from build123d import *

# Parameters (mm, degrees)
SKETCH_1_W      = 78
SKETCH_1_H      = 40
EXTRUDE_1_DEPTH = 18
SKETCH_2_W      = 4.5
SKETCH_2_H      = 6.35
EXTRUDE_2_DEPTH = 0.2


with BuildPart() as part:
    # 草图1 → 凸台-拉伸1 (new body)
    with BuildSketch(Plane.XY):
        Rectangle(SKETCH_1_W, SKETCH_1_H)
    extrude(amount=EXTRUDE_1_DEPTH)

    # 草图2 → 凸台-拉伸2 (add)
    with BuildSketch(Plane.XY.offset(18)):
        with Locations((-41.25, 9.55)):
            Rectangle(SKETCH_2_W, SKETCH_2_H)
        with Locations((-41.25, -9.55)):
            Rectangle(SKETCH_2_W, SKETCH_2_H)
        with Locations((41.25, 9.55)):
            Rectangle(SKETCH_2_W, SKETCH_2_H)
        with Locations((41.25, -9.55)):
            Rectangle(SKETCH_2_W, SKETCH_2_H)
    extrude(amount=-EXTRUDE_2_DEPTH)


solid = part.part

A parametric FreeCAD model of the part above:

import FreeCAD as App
import Part
import Sketcher

V = App.Vector
Q = App.Units.Quantity

doc = App.newDocument("Part")
body = doc.addObject("PartDesign::Body", "Body")

sketch1 = body.newObject("Sketcher::SketchObject", "Sketch")
sketch1.AttachmentSupport = (doc.getObject("XY_Plane"), [""])
sketch1.MapMode = "FlatFace"
sketch1.addGeometry([
    Part.LineSegment(V(-39, 20, 0), V(-39, -20, 0)),
    Part.LineSegment(V(-39, -20, 0), V(39, -20, 0)),
    Part.LineSegment(V(39, -20, 0), V(39, 20, 0)),
    Part.LineSegment(V(39, 20, 0), V(-39, 20, 0)),
], False)
sketch1.addConstraint([
    Sketcher.Constraint("Coincident", 0, 2, 1, 1),
    Sketcher.Constraint("Coincident", 1, 2, 2, 1),
    Sketcher.Constraint("Coincident", 2, 2, 3, 1),
    Sketcher.Constraint("Coincident", 3, 2, 0, 1),
    Sketcher.Constraint("Vertical", 0),
    Sketcher.Constraint("Horizontal", 1),
    Sketcher.Constraint("Vertical", 2),
    Sketcher.Constraint("Horizontal", 3),
    Sketcher.Constraint("Symmetric", 0, 2, 2, 2, -1, 1),
    Sketcher.Constraint("DistanceX", 1, 1, 1, 2, Q("78 mm")),
    Sketcher.Constraint("DistanceY", 0, 2, 0, 1, Q("40 mm")),
])
pad1 = body.newObject("PartDesign::Pad", "Pad")
pad1.Profile = sketch1
pad1.Length = 18

sketch2 = body.newObject("Sketcher::SketchObject", "Sketch001")
sketch2.AttachmentSupport = (doc.getObject("XY_Plane"), [""])
sketch2.MapMode = "FlatFace"
sketch2.AttachmentOffset = App.Placement(V(0, 0, 18), App.Rotation())
sketch2.addGeometry([
    Part.LineSegment(V(-43.5, 12.725, 0), V(-43.5, 6.375, 0)),
    Part.LineSegment(V(-43.5, 6.375, 0), V(-39, 6.375, 0)),
    Part.LineSegment(V(-39, 6.375, 0), V(-39, 12.725, 0)),
    Part.LineSegment(V(-39, 12.725, 0), V(-43.5, 12.725, 0)),
    Part.LineSegment(V(-43.5, -6.375, 0), V(-43.5, -12.725, 0)),
    Part.LineSegment(V(-43.5, -12.725, 0), V(-39, -12.725, 0)),
    Part.LineSegment(V(-39, -12.725, 0), V(-39, -6.375, 0)),
    Part.LineSegment(V(-39, -6.375, 0), V(-43.5, -6.375, 0)),
    Part.LineSegment(V(39, 12.725, 0), V(39, 6.375, 0)),
    Part.LineSegment(V(39, 6.375, 0), V(43.5, 6.375, 0)),
    Part.LineSegment(V(43.5, 6.375, 0), V(43.5, 12.725, 0)),
    Part.LineSegment(V(43.5, 12.725, 0), V(39, 12.725, 0)),
    Part.LineSegment(V(39, -6.375, 0), V(39, -12.725, 0)),
    Part.LineSegment(V(39, -12.725, 0), V(43.5, -12.725, 0)),
    Part.LineSegment(V(43.5, -12.725, 0), V(43.5, -6.375, 0)),
    Part.LineSegment(V(43.5, -6.375, 0), V(39, -6.375, 0)),
], False)
sketch2.addConstraint([
    Sketcher.Constraint("Coincident", 0, 2, 1, 1),
    Sketcher.Constraint("Coincident", 1, 2, 2, 1),
    Sketcher.Constraint("Coincident", 2, 2, 3, 1),
    Sketcher.Constraint("Coincident", 3, 2, 0, 1),
    Sketcher.Constraint("Coincident", 4, 2, 5, 1),
    Sketcher.Constraint("Coincident", 5, 2, 6, 1),
    Sketcher.Constraint("Coincident", 6, 2, 7, 1),
    Sketcher.Constraint("Coincident", 7, 2, 4, 1),
    Sketcher.Constraint("Coincident", 8, 2, 9, 1),
    Sketcher.Constraint("Coincident", 9, 2, 10, 1),
    Sketcher.Constraint("Coincident", 10, 2, 11, 1),
    Sketcher.Constraint("Coincident", 11, 2, 8, 1),
    Sketcher.Constraint("Coincident", 12, 2, 13, 1),
    Sketcher.Constraint("Coincident", 13, 2, 14, 1),
    Sketcher.Constraint("Coincident", 14, 2, 15, 1),
    Sketcher.Constraint("Coincident", 15, 2, 12, 1),
    Sketcher.Constraint("Vertical", 0),
    Sketcher.Constraint("Horizontal", 1),
    Sketcher.Constraint("Vertical", 2),
    Sketcher.Constraint("Horizontal", 3),
    Sketcher.Constraint("Vertical", 4),
    Sketcher.Constraint("Horizontal", 5),
    Sketcher.Constraint("Vertical", 6),
    Sketcher.Constraint("Horizontal", 7),
    Sketcher.Constraint("Vertical", 8),
    Sketcher.Constraint("Horizontal", 9),
    Sketcher.Constraint("Vertical", 10),
    Sketcher.Constraint("Horizontal", 11),
    Sketcher.Constraint("Vertical", 12),
    Sketcher.Constraint("Horizontal", 13),
    Sketcher.Constraint("Vertical", 14),
    Sketcher.Constraint("Horizontal", 15),
    Sketcher.Constraint("Symmetric", 6, 2, 8, 2, -1, 1),
    Sketcher.Constraint("Symmetric", 4, 2, 10, 2, -1, 1),
    Sketcher.Constraint("Symmetric", 2, 2, 12, 2, -1, 1),
    Sketcher.Constraint("Symmetric", 0, 2, 14, 2, -1, 1),
    Sketcher.Constraint("Symmetric", 1, 2, 8, 2, -2),
    Sketcher.Constraint("Symmetric", 3, 2, 10, 2, -2),
    Sketcher.Constraint("DistanceX", 1, 1, 1, 2, Q("4.5 mm")),
    Sketcher.Constraint("DistanceX", 1, 2, -1, 1, Q("39 mm")),
    Sketcher.Constraint("DistanceY", 0, 2, 0, 1, Q("6.35 mm")),
    Sketcher.Constraint("DistanceY", 4, 2, 0, 2, Q("19.1 mm")),
])
pad2 = body.newObject("PartDesign::Pad", "Pad001")
pad2.Profile = sketch2
pad2.Length = 0.2
pad2.Reversed = True

doc.recompute()
